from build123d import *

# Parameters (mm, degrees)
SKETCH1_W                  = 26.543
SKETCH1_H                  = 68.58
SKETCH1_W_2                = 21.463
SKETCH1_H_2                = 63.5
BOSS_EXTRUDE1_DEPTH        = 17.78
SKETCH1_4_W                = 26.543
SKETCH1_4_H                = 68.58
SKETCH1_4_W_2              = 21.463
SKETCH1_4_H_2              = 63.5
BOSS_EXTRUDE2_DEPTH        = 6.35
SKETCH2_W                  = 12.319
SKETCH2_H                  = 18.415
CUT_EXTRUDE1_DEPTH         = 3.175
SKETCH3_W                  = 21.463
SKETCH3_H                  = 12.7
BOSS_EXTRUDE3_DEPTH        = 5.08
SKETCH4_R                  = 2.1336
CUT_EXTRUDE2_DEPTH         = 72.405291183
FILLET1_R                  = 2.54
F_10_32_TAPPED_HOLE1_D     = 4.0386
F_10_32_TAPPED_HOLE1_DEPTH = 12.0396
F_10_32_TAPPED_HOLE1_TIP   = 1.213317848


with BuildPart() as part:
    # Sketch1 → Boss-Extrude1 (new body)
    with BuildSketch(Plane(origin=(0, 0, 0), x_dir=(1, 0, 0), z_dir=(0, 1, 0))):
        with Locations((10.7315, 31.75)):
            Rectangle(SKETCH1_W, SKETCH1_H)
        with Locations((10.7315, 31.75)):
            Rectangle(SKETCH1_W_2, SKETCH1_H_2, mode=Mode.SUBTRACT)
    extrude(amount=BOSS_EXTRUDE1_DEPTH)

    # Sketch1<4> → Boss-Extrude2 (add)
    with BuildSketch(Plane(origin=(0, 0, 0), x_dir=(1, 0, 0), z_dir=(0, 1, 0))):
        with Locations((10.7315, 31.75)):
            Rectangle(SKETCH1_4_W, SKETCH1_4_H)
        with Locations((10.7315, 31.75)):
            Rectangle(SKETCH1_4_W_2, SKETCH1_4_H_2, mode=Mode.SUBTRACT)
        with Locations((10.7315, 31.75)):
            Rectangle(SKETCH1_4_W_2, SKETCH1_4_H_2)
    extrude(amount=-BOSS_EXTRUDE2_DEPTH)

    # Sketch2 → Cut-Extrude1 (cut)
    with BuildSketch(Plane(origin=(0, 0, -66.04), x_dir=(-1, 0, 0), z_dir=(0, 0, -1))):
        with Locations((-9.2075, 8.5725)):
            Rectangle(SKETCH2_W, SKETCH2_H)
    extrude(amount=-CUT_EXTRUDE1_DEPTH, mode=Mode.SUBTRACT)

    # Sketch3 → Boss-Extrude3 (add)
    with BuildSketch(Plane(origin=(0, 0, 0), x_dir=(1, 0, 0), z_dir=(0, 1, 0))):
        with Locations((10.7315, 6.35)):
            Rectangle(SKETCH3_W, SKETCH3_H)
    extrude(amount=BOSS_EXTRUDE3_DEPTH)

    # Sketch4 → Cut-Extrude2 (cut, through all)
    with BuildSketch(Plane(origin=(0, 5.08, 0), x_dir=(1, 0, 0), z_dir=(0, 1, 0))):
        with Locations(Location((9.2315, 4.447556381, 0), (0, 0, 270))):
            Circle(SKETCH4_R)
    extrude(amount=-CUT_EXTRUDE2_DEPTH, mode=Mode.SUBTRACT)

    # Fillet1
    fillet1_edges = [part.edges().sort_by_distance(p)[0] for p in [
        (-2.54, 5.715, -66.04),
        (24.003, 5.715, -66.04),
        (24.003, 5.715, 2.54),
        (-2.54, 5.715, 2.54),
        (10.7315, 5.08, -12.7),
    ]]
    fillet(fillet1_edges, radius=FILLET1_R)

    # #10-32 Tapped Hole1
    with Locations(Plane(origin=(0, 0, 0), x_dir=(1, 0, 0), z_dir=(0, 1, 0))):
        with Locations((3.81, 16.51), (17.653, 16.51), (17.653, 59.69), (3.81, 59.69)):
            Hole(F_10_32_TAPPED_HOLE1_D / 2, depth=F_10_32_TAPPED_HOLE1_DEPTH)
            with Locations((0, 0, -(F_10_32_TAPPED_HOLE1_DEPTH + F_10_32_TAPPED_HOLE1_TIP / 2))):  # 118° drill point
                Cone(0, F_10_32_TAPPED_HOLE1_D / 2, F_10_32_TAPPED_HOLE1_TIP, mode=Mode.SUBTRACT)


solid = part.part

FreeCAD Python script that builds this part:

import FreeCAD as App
import Part
import Sketcher
from FreeCAD import Vector
Q = App.Units.Quantity


def edges_at(feature, points):
    """Names of the edges that pass closest to the given points."""
    edges = feature.Shape.Edges
    near = lambda p: min(range(len(edges)), key=lambda i: edges[i].distToShape(Part.Vertex(*p))[0])
    return sorted({f"Edge{near(p) + 1}" for p in points})


def add_polygon(sketch, points):
    """Adds a closed chain of lines whose ends are joined by coincident constraints."""
    first, n = sketch.GeometryCount, len(points)
    for a, b in zip(points, points[1:] + points[:1]):
        sketch.addGeometry(Part.LineSegment(App.Vector(*a, 0), App.Vector(*b, 0)), False)
    for i in range(n):
        sketch.addConstraint(Sketcher.Constraint("Coincident", first + i, 2, first + (i + 1) % n, 1))

doc = App.newDocument("Part")
body = doc.addObject("PartDesign::Body", "Body")

sketch1 = body.newObject("Sketcher::SketchObject", "Sketch")
sketch1.AttachmentSupport = (doc.getObject("XZ_Plane"), [""])
sketch1.MapMode = "FlatFace"
add_polygon(sketch1, [(-2.54, -66.04), (-2.54, 2.54), (24.003, 2.54), (24.003, -66.04)])
add_polygon(sketch1, [(21.463, 0), (0, 0), (0, -63.5), (21.463, -63.5)])
sketch1.addConstraint([
    Sketcher.Constraint("Vertical", 0),
    Sketcher.Constraint("Horizontal", 1),
    Sketcher.Constraint("Vertical", 2),
    Sketcher.Constraint("Horizontal", 3),
    Sketcher.Constraint("Horizontal", 4),
    Sketcher.Constraint("Vertical", 5),
    Sketcher.Constraint("Horizontal", 6),
    Sketcher.Constraint("Vertical", 7),
    Sketcher.Constraint("Coincident", 4, 2, -1, 1),
    Sketcher.Constraint("DistanceY", 0, 1, 0, 2, Q("2.7 in")),
    Sketcher.Constraint("DistanceY", 5, 2, 5, 1, Q("2.5 in")),
    Sketcher.Constraint("DistanceX", 0, 2, -1, 1, Q("0.1 in")),
    Sketcher.Constraint("DistanceY", -1, 1, 0, 2, Q("0.1 in")),
    Sketcher.Constraint("DistanceX", 6, 2, 2, 2, Q("0.1 in")),
    Sketcher.Constraint("DistanceX", 1, 1, 1, 2, Q("1.045 in")),
])
pad1 = body.newObject("PartDesign::Pad", "Pad")
pad1.Profile = sketch1
pad1.Length = Q("0.7 in")
pad1.Reversed = True

sketch2 = body.newObject("Sketcher::SketchObject", "Sketch001")
sketch2.AttachmentSupport = (doc.getObject("XZ_Plane"), [""])
sketch2.MapMode = "FlatFace"
add_polygon(sketch2, [(-2.54, -66.04), (-2.54, 2.54), (24.003, 2.54), (24.003, -66.04)])
sketch2.addConstraint([
    Sketcher.Constraint("Vertical", 0),
    Sketcher.Constraint("Horizontal", 1),
    Sketcher.Constraint("Vertical", 2),
    Sketcher.Constraint("Horizontal", 3),
    Sketcher.Constraint("DistanceY", 0, 1, 0, 2, Q("2.7 in")),
    Sketcher.Constraint("DistanceX", 0, 2, -1, 1, Q("0.1 in")),
    Sketcher.Constraint("DistanceY", -1, 1, 0, 2, Q("0.1 in")),
    Sketcher.Constraint("DistanceX", 1, 1, 1, 2, Q("1.045 in")),
])
pad2 = body.newObject("PartDesign::Pad", "Pad001")
pad2.Profile = sketch2
pad2.Length = Q("0.25 in")

sketch3 = body.newObject("Sketcher::SketchObject", "Sketch002")
sketch3.AttachmentSupport = (doc.getObject("XY_Plane"), [""])
sketch3.MapMode = "FlatFace"
sketch3.AttachmentOffset = App.Placement(Vector(0, 0, -2.6 * 25.4), App.Rotation())
add_polygon(sketch3, [(15.367, 17.78), (15.367, -0.635), (3.048, -0.635), (3.048, 17.78)])
sketch3.addConstraint([
    Sketcher.Constraint("Vertical", 0),
    Sketcher.Constraint("Horizontal", 1),
    Sketcher.Constraint("Vertical", 2),
    Sketcher.Constraint("Horizontal", 3),
    Sketcher.Constraint("DistanceY", -1, 1, 2, 2, Q("0.7 in")),
    Sketcher.Constraint("DistanceX", 1, 2, 1, 1, Q("0.485 in")),
    Sketcher.Constraint("DistanceY", 0, 2, 0, 1, Q("0.725 in")),
    Sketcher.Constraint("DistanceX", -1, 1, 1, 2, Q("0.12 in")),
])
pocket1 = body.newObject("PartDesign::Pocket", "Pocket")
pocket1.Profile = sketch3
pocket1.Length = Q("0.125 in")
pocket1.Reversed = True

sketch4 = body.newObject("Sketcher::SketchObject", "Sketch003")
sketch4.AttachmentSupport = (doc.getObject("XZ_Plane"), [""])
sketch4.MapMode = "FlatFace"
add_polygon(sketch4, [(0, -12.7), (0, 0), (21.463, 0), (21.463, -12.7)])
sketch4.addConstraint([
    Sketcher.Constraint("Vertical", 0),
    Sketcher.Constraint("Horizontal", 1),
    Sketcher.Constraint("Vertical", 2),
    Sketcher.Constraint("Horizontal", 3),
    Sketcher.Constraint("Coincident", 0, 2, -1, 1),
    Sketcher.Constraint("DistanceY", 0, 1, 0, 2, Q("0.5 in")),
    Sketcher.Constraint("DistanceX", 1, 1, 1, 2, Q("0.845 in")),
])
pad3 = body.newObject("PartDesign::Pad", "Pad002")
pad3.Profile = sketch4
pad3.Length = Q("0.2 in")
pad3.Reversed = True

sketch5 = body.newObject("Sketcher::SketchObject", "Sketch004")
sketch5.AttachmentSupport = (doc.getObject("XZ_Plane"), [""])
sketch5.MapMode = "FlatFace"
sketch5.AttachmentOffset = App.Placement(Vector(0, 0, -0.2 * 25.4), App.Rotation())
sketch5.addGeometry(Part.Circle(Vector(9.2315, -4.447556, 0), Vector(0, 0, 1), 2.1336), False)
sketch5.addConstraint([
    Sketcher.Constraint("Diameter", 0, Q("0.168 in")),
    Sketcher.Constraint("DistanceX", -1, 1, 0, 3, Q("9.2315 mm")),
    Sketcher.Constraint("DistanceY", 0, 3, -1, 1, Q("4.447556 mm")),
])
pocket2 = body.newObject("PartDesign::Pocket", "Pocket001")
pocket2.Profile = sketch5
pocket2.Type = "ThroughAll"
pocket2.Reversed = True
doc.recompute()

fillet = body.newObject("PartDesign::Fillet", "Fillet")
fillet.Base = (pocket2, edges_at(pocket2, [
    (-2.54, 5.715, -66.04),
    (24.003, 5.715, -66.04),
    (24.003, 5.715, 2.54),
    (-2.54, 5.715, 2.54),
    (10.732, 5.08, -12.7),
]))
fillet.Radius = Q("0.1 in")

sketch6 = body.newObject("Sketcher::SketchObject", "Sketch005")
sketch6.AttachmentSupport = (doc.getObject("XZ_Plane"), [""])
sketch6.MapMode = "FlatFace"
sketch6.addGeometry([
    Part.Circle(Vector(3.81, -16.51, 0), Vector(0, 0, 1), 2.0193),
    Part.Circle(Vector(17.653, -16.51, 0), Vector(0, 0, 1), 2.0193),
    Part.Circle(Vector(17.653, -59.69, 0), Vector(0, 0, 1), 2.0193),
    Part.Circle(Vector(3.81, -59.69, 0), Vector(0, 0, 1), 2.0193),
], False)
sketch6.addConstraint([
    Sketcher.Constraint("Equal", 0, 1),
    Sketcher.Constraint("Equal", 1, 2),
    Sketcher.Constraint("Equal", 2, 3),
    Sketcher.Constraint("Horizontal", 0, 3, 1, 3),
    Sketcher.Constraint("Horizontal", 2, 3, 3, 3),
    Sketcher.Constraint("Vertical", 1, 3, 2, 3),
    Sketcher.Constraint("Vertical", 0, 3, 3, 3),
    Sketcher.Constraint("Diameter", 0, Q("0.159 in")),
    Sketcher.Constraint("DistanceY", 2, 3, 1, 3, Q("1.7 in")),
    Sketcher.Constraint("DistanceX", -1, 1, 0, 3, Q("0.15 in")),
    Sketcher.Constraint("DistanceY", 0, 3, -1, 1, Q("0.65 in")),
    Sketcher.Constraint("DistanceX", -1, 1, 1, 3, Q("0.695 in")),
])
doc.recompute()
hole = body.newObject("PartDesign::Hole", "Hole")
hole.Profile = sketch6
hole.ThreadType = "None"
hole.Diameter = Q("0.159 in")
hole.DepthType = "Dimension"
hole.Depth = Q("0.474 in")
hole.DrillPoint = "Angled"
hole.DrillPointAngle = 118
hole.Reversed = True

doc.recompute()
